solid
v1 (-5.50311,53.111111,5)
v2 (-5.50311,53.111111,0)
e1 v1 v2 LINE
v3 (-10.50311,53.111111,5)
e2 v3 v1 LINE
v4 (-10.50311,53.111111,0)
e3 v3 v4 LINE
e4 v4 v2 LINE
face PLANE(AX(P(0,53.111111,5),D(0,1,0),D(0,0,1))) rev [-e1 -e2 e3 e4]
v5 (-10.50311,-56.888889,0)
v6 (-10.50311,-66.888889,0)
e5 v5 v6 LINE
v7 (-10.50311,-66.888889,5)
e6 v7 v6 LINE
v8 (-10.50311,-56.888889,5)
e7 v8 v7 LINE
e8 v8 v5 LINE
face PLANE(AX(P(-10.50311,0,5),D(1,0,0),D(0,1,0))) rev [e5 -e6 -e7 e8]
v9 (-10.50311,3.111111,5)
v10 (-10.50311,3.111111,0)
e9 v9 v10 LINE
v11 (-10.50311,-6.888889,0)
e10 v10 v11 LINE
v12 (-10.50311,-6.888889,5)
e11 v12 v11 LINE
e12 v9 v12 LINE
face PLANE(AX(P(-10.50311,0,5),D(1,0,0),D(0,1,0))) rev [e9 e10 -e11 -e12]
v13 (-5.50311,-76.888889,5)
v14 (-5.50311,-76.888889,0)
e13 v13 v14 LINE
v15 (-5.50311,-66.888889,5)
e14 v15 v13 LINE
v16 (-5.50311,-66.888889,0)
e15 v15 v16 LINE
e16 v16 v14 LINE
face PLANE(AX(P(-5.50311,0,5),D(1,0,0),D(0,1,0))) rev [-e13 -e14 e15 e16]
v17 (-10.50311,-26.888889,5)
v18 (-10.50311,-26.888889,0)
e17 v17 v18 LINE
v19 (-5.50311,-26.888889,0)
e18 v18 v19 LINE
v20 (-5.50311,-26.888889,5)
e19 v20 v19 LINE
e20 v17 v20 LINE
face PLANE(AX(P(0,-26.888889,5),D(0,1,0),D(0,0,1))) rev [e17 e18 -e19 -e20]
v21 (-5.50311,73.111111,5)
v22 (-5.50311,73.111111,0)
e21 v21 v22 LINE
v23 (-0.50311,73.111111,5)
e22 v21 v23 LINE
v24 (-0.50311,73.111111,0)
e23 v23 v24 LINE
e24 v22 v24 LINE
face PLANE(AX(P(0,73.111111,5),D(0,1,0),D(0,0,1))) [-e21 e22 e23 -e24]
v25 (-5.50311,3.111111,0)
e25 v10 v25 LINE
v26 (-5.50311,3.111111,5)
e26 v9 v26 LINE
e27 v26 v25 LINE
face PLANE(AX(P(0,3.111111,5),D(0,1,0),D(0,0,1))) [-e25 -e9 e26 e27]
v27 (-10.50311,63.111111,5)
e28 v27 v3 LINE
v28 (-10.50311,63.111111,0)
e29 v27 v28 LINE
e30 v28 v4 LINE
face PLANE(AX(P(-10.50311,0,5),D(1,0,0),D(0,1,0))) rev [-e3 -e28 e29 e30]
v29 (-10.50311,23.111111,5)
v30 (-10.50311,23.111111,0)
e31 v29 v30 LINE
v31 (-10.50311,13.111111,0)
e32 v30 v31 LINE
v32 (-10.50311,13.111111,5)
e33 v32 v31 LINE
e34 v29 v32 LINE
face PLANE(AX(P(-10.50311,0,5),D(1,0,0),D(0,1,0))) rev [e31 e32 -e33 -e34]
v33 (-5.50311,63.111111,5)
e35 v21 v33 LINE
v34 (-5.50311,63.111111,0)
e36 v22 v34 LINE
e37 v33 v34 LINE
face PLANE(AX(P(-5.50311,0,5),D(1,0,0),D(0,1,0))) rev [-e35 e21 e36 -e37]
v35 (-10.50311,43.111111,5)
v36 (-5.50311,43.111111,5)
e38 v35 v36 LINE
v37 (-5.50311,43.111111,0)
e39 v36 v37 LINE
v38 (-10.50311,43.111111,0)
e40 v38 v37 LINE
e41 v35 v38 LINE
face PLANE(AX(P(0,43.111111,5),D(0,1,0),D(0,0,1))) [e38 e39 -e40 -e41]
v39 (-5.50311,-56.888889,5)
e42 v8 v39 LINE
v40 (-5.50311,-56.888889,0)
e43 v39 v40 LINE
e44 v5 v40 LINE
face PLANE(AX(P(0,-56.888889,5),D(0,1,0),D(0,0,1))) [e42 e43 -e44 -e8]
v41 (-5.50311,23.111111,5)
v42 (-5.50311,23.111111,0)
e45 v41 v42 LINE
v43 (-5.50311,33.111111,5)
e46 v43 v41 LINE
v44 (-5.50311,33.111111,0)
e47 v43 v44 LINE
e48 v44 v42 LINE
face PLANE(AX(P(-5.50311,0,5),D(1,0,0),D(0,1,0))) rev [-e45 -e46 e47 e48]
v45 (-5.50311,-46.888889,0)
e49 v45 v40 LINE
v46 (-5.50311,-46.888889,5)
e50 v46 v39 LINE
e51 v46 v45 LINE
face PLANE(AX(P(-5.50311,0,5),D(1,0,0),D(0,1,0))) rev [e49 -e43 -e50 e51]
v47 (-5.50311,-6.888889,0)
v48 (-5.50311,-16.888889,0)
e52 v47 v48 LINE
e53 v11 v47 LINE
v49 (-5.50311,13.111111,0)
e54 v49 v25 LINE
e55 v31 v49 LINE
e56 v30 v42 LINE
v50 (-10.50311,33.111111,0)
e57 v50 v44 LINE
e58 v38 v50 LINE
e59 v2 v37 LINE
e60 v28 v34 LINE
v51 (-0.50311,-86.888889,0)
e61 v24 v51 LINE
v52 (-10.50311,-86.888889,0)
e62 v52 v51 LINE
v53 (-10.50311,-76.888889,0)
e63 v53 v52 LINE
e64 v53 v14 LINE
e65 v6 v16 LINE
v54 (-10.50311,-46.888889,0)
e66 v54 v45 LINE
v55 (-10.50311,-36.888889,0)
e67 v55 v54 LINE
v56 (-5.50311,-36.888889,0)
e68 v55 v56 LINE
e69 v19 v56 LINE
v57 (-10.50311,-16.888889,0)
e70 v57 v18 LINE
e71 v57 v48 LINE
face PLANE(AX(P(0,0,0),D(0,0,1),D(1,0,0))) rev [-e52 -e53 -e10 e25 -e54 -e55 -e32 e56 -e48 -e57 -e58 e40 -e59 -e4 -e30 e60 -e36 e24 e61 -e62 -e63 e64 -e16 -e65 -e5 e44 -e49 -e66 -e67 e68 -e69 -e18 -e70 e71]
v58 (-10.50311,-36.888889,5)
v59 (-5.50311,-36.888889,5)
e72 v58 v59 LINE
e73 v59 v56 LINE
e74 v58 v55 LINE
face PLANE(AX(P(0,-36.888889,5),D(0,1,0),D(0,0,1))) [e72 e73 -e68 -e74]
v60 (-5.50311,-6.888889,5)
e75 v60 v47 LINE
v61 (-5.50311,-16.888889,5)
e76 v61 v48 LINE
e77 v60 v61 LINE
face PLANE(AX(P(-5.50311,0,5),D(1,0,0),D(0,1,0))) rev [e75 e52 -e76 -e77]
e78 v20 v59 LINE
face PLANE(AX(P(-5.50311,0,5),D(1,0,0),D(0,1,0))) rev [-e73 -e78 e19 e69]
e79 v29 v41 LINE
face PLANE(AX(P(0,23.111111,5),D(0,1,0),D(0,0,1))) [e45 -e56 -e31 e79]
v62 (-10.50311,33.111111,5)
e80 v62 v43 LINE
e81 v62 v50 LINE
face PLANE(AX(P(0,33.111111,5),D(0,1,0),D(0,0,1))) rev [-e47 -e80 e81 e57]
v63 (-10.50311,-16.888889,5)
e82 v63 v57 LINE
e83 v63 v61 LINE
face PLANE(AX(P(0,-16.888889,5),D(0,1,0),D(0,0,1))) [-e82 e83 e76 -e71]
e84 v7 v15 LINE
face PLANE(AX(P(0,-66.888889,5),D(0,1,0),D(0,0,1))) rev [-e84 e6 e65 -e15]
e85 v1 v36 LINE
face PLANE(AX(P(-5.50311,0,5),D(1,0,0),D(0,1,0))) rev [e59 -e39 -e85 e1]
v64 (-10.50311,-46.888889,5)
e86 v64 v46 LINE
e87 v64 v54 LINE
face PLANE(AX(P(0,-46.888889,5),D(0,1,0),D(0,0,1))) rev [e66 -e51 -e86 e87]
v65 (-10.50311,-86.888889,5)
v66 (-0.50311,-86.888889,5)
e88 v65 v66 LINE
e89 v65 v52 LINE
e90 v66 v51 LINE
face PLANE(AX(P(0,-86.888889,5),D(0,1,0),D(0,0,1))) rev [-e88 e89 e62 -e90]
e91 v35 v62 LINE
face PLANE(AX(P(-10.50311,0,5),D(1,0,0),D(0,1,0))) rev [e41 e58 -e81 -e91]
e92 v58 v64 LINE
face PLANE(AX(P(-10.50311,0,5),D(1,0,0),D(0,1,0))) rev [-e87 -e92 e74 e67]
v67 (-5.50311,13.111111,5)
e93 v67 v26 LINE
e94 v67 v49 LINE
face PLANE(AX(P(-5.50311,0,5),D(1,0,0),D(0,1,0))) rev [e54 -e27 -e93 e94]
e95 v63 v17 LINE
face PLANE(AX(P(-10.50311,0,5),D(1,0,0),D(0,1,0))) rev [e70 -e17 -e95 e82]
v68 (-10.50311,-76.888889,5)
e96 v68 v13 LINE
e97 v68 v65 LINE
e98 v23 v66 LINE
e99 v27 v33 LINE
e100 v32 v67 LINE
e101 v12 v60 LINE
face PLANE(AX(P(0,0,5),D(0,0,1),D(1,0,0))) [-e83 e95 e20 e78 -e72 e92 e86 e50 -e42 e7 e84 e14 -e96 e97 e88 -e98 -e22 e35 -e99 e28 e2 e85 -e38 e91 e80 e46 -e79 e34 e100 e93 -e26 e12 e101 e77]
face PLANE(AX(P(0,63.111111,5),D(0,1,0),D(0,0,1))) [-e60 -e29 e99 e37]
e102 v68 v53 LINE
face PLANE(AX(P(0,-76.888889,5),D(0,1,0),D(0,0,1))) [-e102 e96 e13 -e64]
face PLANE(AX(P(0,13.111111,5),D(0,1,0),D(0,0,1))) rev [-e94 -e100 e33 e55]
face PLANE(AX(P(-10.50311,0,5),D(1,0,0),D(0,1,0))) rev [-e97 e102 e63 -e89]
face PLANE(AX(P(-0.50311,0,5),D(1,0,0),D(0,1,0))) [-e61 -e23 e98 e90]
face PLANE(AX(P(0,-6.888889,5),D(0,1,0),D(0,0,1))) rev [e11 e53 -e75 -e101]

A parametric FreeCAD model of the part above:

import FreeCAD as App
import Part
import Sketcher
from FreeCAD import Vector
Q = App.Units.Quantity

doc = App.newDocument("Part")
body = doc.addObject("PartDesign::Body", "Body")

# Sketch on XY plane
sketch1 = body.newObject("Sketcher::SketchObject", "Sketch")
sketch1.AttachmentSupport = (doc.getObject("XY_Plane"), [""])
sketch1.MapMode = "FlatFace"
sketch1.addGeometry(Part.LineSegment(Vector(-11, 63, 0), Vector(-11, 53, 0)), False)
sketch1.addGeometry(Part.LineSegment(Vector(-11, 53, 0), Vector(-6, 53, 0)), False)
sketch1.addGeometry(Part.LineSegment(Vector(-6, 53, 0), Vector(-6, 43, 0)), False)
sketch1.addGeometry(Part.LineSegment(Vector(-6, 43, 0), Vector(-11, 43, 0)), False)
sketch1.addGeometry(Part.LineSegment(Vector(-11, 43, 0), Vector(-11, 33, 0)), False)
sketch1.addGeometry(Part.LineSegment(Vector(-11, 33, 0), Vector(-6, 33, 0)), False)
sketch1.addGeometry(Part.LineSegment(Vector(-6, 33, 0), Vector(-6, 23, 0)), False)
sketch1.addGeometry(Part.LineSegment(Vector(-6, 23, 0), Vector(-11, 23, 0)), False)
sketch1.addGeometry(Part.LineSegment(Vector(-11, 23, 0), Vector(-11, 13, 0)), False)
sketch1.addGeometry(Part.LineSegment(Vector(-11, 13, 0), Vector(-6, 13, 0)), False)
sketch1.addGeometry(Part.LineSegment(Vector(-6, 13, 0), Vector(-6, 3, 0)), False)
sketch1.addGeometry(Part.LineSegment(Vector(-6, 3, 0), Vector(-11, 3, 0)), False)
sketch1.addGeometry(Part.LineSegment(Vector(-11, 3, 0), Vector(-11, -7, 0)), False)
sketch1.addGeometry(Part.LineSegment(Vector(-11, -7, 0), Vector(-6, -7, 0)), False)
sketch1.addGeometry(Part.LineSegment(Vector(-6, -7, 0), Vector(-6, -17, 0)), False)
sketch1.addGeometry(Part.LineSegment(Vector(-6, -17, 0), Vector(-11, -17, 0)), False)
sketch1.addGeometry(Part.LineSegment(Vector(-11, -17, 0), Vector(-11, -27, 0)), False)
sketch1.addGeometry(Part.LineSegment(Vector(-11, -27, 0), Vector(-6, -27, 0)), False)
sketch1.addGeometry(Part.LineSegment(Vector(-6, -27, 0), Vector(-6, -37, 0)), False)
sketch1.addGeometry(Part.LineSegment(Vector(-6, -37, 0), Vector(-11, -37, 0)), False)
sketch1.addGeometry(Part.LineSegment(Vector(-11, -37, 0), Vector(-11, -47, 0)), False)
sketch1.addGeometry(Part.LineSegment(Vector(-11, -47, 0), Vector(-6, -47, 0)), False)
sketch1.addGeometry(Part.LineSegment(Vector(-6, -47, 0), Vector(-6, -57, 0)), False)
sketch1.addGeometry(Part.LineSegment(Vector(-6, -57, 0), Vector(-11, -57, 0)), False)
sketch1.addGeometry(Part.LineSegment(Vector(-11, -57, 0), Vector(-11, -67, 0)), False)
sketch1.addGeometry(Part.LineSegment(Vector(-11, -67, 0), Vector(-6, -67, 0)), False)
sketch1.addGeometry(Part.LineSegment(Vector(-6, -67, 0), Vector(-6, -77, 0)), False)
sketch1.addGeometry(Part.LineSegment(Vector(-6, -77, 0), Vector(-11, -77, 0)), False)
sketch1.addGeometry(Part.LineSegment(Vector(-11, -77, 0), Vector(-11, -87, 0)), False)
sketch1.addGeometry(Part.LineSegment(Vector(-11, -87, 0), Vector(-1, -87, 0)), False)
sketch1.addGeometry(Part.LineSegment(Vector(-1, -87, 0), Vector(-1, 73, 0)), False)
sketch1.addGeometry(Part.LineSegment(Vector(-1, 73, 0), Vector(-6, 73, 0)), False)
sketch1.addGeometry(Part.LineSegment(Vector(-6, 73, 0), Vector(-6, 63, 0)), False)
sketch1.addGeometry(Part.LineSegment(Vector(-6, 63, 0), Vector(-11, 63, 0)), False)
sketch1.addConstraint(Sketcher.Constraint("Coincident", 0, 2, 1, 1))
sketch1.addConstraint(Sketcher.Constraint("Coincident", 1, 2, 2, 1))
sketch1.addConstraint(Sketcher.Constraint("Coincident", 2, 2, 3, 1))
sketch1.addConstraint(Sketcher.Constraint("Coincident", 3, 2, 4, 1))
sketch1.addConstraint(Sketcher.Constraint("Coincident", 4, 2, 5, 1))
sketch1.addConstraint(Sketcher.Constraint("Coincident", 5, 2, 6, 1))
sketch1.addConstraint(Sketcher.Constraint("Coincident", 6, 2, 7, 1))
sketch1.addConstraint(Sketcher.Constraint("Coincident", 7, 2, 8, 1))
sketch1.addConstraint(Sketcher.Constraint("Coincident", 8, 2, 9, 1))
sketch1.addConstraint(Sketcher.Constraint("Coincident", 9, 2, 10, 1))
sketch1.addConstraint(Sketcher.Constraint("Coincident", 10, 2, 11, 1))
sketch1.addConstraint(Sketcher.Constraint("Coincident", 11, 2, 12, 1))
sketch1.addConstraint(Sketcher.Constraint("Coincident", 12, 2, 13, 1))
sketch1.addConstraint(Sketcher.Constraint("Coincident", 13, 2, 14, 1))
sketch1.addConstraint(Sketcher.Constraint("Coincident", 14, 2, 15, 1))
sketch1.addConstraint(Sketcher.Constraint("Coincident", 15, 2, 16, 1))
sketch1.addConstraint(Sketcher.Constraint("Coincident", 16, 2, 17, 1))
sketch1.addConstraint(Sketcher.Constraint("Coincident", 17, 2, 18, 1))
sketch1.addConstraint(Sketcher.Constraint("Coincident", 18, 2, 19, 1))
sketch1.addConstraint(Sketcher.Constraint("Coincident", 19, 2, 20, 1))
sketch1.addConstraint(Sketcher.Constraint("Coincident", 20, 2, 21, 1))
sketch1.addConstraint(Sketcher.Constraint("Coincident", 21, 2, 22, 1))
sketch1.addConstraint(Sketcher.Constraint("Coincident", 22, 2, 23, 1))
sketch1.addConstraint(Sketcher.Constraint("Coincident", 23, 2, 24, 1))
sketch1.addConstraint(Sketcher.Constraint("Coincident", 24, 2, 25, 1))
sketch1.addConstraint(Sketcher.Constraint("Coincident", 25, 2, 26, 1))
sketch1.addConstraint(Sketcher.Constraint("Coincident", 26, 2, 27, 1))
sketch1.addConstraint(Sketcher.Constraint("Coincident", 27, 2, 28, 1))
sketch1.addConstraint(Sketcher.Constraint("Coincident", 28, 2, 29, 1))
sketch1.addConstraint(Sketcher.Constraint("Coincident", 29, 2, 30, 1))
sketch1.addConstraint(Sketcher.Constraint("Coincident", 30, 2, 31, 1))
sketch1.addConstraint(Sketcher.Constraint("Coincident", 31, 2, 32, 1))
sketch1.addConstraint(Sketcher.Constraint("Coincident", 32, 2, 33, 1))
sketch1.addConstraint(Sketcher.Constraint("Coincident", 33, 2, 0, 1))
sketch1.addConstraint(Sketcher.Constraint("Vertical", 0))
sketch1.addConstraint(Sketcher.Constraint("Horizontal", 1))
sketch1.addConstraint(Sketcher.Constraint("Vertical", 2))
sketch1.addConstraint(Sketcher.Constraint("Horizontal", 3))
sketch1.addConstraint(Sketcher.Constraint("Vertical", 4))
sketch1.addConstraint(Sketcher.Constraint("Horizontal", 5))
sketch1.addConstraint(Sketcher.Constraint("Vertical", 6))
sketch1.addConstraint(Sketcher.Constraint("Horizontal", 7))
sketch1.addConstraint(Sketcher.Constraint("Vertical", 8))
sketch1.addConstraint(Sketcher.Constraint("Horizontal", 9))
sketch1.addConstraint(Sketcher.Constraint("Vertical", 10))
sketch1.addConstraint(Sketcher.Constraint("Horizontal", 11))
sketch1.addConstraint(Sketcher.Constraint("Vertical", 12))
sketch1.addConstraint(Sketcher.Constraint("Horizontal", 13))
sketch1.addConstraint(Sketcher.Constraint("Vertical", 14))
sketch1.addConstraint(Sketcher.Constraint("Horizontal", 15))
sketch1.addConstraint(Sketcher.Constraint("Vertical", 16))
sketch1.addConstraint(Sketcher.Constraint("Horizontal", 17))
sketch1.addConstraint(Sketcher.Constraint("Vertical", 18))
sketch1.addConstraint(Sketcher.Constraint("Horizontal", 19))
sketch1.addConstraint(Sketcher.Constraint("Vertical", 20))
sketch1.addConstraint(Sketcher.Constraint("Horizontal", 21))
sketch1.addConstraint(Sketcher.Constraint("Vertical", 22))
sketch1.addConstraint(Sketcher.Constraint("Horizontal", 23))
sketch1.addConstraint(Sketcher.Constraint("Vertical", 24))
sketch1.addConstraint(Sketcher.Constraint("Horizontal", 25))
sketch1.addConstraint(Sketcher.Constraint("Vertical", 26))
sketch1.addConstraint(Sketcher.Constraint("Horizontal", 27))
sketch1.addConstraint(Sketcher.Constraint("Vertical", 28))
sketch1.addConstraint(Sketcher.Constraint("Horizontal", 29))
sketch1.addConstraint(Sketcher.Constraint("Vertical", 30))
sketch1.addConstraint(Sketcher.Constraint("Horizontal", 31))
sketch1.addConstraint(Sketcher.Constraint("Vertical", 32))
sketch1.addConstraint(Sketcher.Constraint("Horizontal", 33))
sketch1.addConstraint(Sketcher.Constraint("Vertical", 0, 2, 3, 2))
sketch1.addConstraint(Sketcher.Constraint("Vertical", 2, 2, 5, 2))
sketch1.addConstraint(Sketcher.Constraint("Vertical", 4, 2, 7, 2))
sketch1.addConstraint(Sketcher.Constraint("Vertical", 6, 2, 9, 2))
sketch1.addConstraint(Sketcher.Constraint("Vertical", 8, 2, 11, 2))
sketch1.addConstraint(Sketcher.Constraint("Vertical", 10, 2, 13, 2))
sketch1.addConstraint(Sketcher.Constraint("Vertical", 12, 2, 15, 2))
sketch1.addConstraint(Sketcher.Constraint("Vertical", 14, 2, 17, 2))
sketch1.addConstraint(Sketcher.Constraint("Vertical", 16, 2, 19, 2))
sketch1.addConstraint(Sketcher.Constraint("Vertical", 18, 2, 21, 2))
sketch1.addConstraint(Sketcher.Constraint("Vertical", 20, 2, 23, 2))
sketch1.addConstraint(Sketcher.Constraint("Vertical", 22, 2, 25, 2))
sketch1.addConstraint(Sketcher.Constraint("Vertical", 24, 2, 27, 2))
sketch1.addConstraint(Sketcher.Constraint("Vertical", 26, 2, 31, 2))
sketch1.addConstraint(Sketcher.Constraint("Equal", 27, 31))
sketch1.addConstraint(Sketcher.Constraint("Equal", 29, 0))
sketch1.addConstraint(Sketcher.Constraint("Equal", 0, 2))
sketch1.addConstraint(Sketcher.Constraint("Equal", 2, 4))
sketch1.addConstraint(Sketcher.Constraint("Equal", 4, 6))
sketch1.addConstraint(Sketcher.Constraint("Equal", 6, 8))
sketch1.addConstraint(Sketcher.Constraint("Equal", 8, 10))
sketch1.addConstraint(Sketcher.Constraint("Equal", 10, 12))
sketch1.addConstraint(Sketcher.Constraint("Equal", 12, 14))
sketch1.addConstraint(Sketcher.Constraint("Equal", 14, 16))
sketch1.addConstraint(Sketcher.Constraint("Equal", 16, 18))
sketch1.addConstraint(Sketcher.Constraint("Equal", 18, 20))
sketch1.addConstraint(Sketcher.Constraint("Equal", 20, 22))
sketch1.addConstraint(Sketcher.Constraint("Equal", 22, 24))
sketch1.addConstraint(Sketcher.Constraint("Equal", 24, 26))
sketch1.addConstraint(Sketcher.Constraint("Equal", 26, 28))
sketch1.addConstraint(Sketcher.Constraint("Equal", 28, 32))
sketch1.addConstraint(Sketcher.Constraint("DistanceX", 1, 1, 1, 2, Q("5 mm")))
sketch1.addConstraint(Sketcher.Constraint("DistanceX", 0, 2, -1, 1, Q("10.50311 mm")))
sketch1.addConstraint(Sketcher.Constraint("DistanceY", -1, 1, 0, 2, Q("53.111111 mm")))
pad1 = body.newObject("PartDesign::Pad", "Pad")
pad1.Profile = sketch1
pad1.Length = 5

doc.recompute()
